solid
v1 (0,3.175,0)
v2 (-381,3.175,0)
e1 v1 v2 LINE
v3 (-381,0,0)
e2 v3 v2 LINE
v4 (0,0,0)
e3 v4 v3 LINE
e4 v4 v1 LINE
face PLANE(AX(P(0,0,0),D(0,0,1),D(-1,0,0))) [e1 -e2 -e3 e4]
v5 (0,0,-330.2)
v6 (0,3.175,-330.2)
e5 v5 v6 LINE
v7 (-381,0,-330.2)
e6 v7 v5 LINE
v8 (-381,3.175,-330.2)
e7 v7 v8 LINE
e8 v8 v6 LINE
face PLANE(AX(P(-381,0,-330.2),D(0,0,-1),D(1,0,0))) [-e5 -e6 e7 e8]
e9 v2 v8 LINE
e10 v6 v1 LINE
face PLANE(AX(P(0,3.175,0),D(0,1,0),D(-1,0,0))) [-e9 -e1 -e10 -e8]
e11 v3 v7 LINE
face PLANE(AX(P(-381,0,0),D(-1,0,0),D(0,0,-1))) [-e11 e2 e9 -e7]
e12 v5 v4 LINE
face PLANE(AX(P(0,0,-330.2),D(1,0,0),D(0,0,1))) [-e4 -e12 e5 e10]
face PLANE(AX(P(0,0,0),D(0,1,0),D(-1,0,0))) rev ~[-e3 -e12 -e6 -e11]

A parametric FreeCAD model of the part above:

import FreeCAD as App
import Part
import Sketcher
Q = App.Units.Quantity

doc = App.newDocument("Part")
body = doc.addObject("PartDesign::Body", "Body")

# Sketch on XZ plane
sketch1 = body.newObject("Sketcher::SketchObject", "Sketch")
sketch1.AttachmentSupport = (doc.getObject("XZ_Plane"), [""])
sketch1.MapMode = "FlatFace"
sketch1.addGeometry([
    Part.LineSegment(App.Vector(-381, 0, 0), App.Vector(0, 0, 0)),
    Part.LineSegment(App.Vector(0, 0, 0), App.Vector(0, -330.2, 0)),
    Part.LineSegment(App.Vector(0, -330.2, 0), App.Vector(-381, -330.2, 0)),
    Part.LineSegment(App.Vector(-381, -330.2, 0), App.Vector(-381, 0, 0)),
], False)
sketch1.addConstraint([
    Sketcher.Constraint("Coincident", 0, 2, 1, 1),
    Sketcher.Constraint("Coincident", 1, 2, 2, 1),
    Sketcher.Constraint("Coincident", 2, 2, 3, 1),
    Sketcher.Constraint("Coincident", 3, 2, 0, 1),
    Sketcher.Constraint("Horizontal", 0),
    Sketcher.Constraint("Vertical", 1),
    Sketcher.Constraint("Horizontal", 2),
    Sketcher.Constraint("Vertical", 3),
    Sketcher.Constraint("Coincident", 0, 2, -1, 1),
    Sketcher.Constraint("DistanceX", 0, 1, 0, 2, Q("15 in")),
    Sketcher.Constraint("DistanceY", 1, 2, 1, 1, Q("13 in")),
])
pad1 = body.newObject("PartDesign::Pad", "Pad")
pad1.Profile = sketch1
pad1.Length = Q("0.125 in")
pad1.Reversed = True

doc.recompute()
